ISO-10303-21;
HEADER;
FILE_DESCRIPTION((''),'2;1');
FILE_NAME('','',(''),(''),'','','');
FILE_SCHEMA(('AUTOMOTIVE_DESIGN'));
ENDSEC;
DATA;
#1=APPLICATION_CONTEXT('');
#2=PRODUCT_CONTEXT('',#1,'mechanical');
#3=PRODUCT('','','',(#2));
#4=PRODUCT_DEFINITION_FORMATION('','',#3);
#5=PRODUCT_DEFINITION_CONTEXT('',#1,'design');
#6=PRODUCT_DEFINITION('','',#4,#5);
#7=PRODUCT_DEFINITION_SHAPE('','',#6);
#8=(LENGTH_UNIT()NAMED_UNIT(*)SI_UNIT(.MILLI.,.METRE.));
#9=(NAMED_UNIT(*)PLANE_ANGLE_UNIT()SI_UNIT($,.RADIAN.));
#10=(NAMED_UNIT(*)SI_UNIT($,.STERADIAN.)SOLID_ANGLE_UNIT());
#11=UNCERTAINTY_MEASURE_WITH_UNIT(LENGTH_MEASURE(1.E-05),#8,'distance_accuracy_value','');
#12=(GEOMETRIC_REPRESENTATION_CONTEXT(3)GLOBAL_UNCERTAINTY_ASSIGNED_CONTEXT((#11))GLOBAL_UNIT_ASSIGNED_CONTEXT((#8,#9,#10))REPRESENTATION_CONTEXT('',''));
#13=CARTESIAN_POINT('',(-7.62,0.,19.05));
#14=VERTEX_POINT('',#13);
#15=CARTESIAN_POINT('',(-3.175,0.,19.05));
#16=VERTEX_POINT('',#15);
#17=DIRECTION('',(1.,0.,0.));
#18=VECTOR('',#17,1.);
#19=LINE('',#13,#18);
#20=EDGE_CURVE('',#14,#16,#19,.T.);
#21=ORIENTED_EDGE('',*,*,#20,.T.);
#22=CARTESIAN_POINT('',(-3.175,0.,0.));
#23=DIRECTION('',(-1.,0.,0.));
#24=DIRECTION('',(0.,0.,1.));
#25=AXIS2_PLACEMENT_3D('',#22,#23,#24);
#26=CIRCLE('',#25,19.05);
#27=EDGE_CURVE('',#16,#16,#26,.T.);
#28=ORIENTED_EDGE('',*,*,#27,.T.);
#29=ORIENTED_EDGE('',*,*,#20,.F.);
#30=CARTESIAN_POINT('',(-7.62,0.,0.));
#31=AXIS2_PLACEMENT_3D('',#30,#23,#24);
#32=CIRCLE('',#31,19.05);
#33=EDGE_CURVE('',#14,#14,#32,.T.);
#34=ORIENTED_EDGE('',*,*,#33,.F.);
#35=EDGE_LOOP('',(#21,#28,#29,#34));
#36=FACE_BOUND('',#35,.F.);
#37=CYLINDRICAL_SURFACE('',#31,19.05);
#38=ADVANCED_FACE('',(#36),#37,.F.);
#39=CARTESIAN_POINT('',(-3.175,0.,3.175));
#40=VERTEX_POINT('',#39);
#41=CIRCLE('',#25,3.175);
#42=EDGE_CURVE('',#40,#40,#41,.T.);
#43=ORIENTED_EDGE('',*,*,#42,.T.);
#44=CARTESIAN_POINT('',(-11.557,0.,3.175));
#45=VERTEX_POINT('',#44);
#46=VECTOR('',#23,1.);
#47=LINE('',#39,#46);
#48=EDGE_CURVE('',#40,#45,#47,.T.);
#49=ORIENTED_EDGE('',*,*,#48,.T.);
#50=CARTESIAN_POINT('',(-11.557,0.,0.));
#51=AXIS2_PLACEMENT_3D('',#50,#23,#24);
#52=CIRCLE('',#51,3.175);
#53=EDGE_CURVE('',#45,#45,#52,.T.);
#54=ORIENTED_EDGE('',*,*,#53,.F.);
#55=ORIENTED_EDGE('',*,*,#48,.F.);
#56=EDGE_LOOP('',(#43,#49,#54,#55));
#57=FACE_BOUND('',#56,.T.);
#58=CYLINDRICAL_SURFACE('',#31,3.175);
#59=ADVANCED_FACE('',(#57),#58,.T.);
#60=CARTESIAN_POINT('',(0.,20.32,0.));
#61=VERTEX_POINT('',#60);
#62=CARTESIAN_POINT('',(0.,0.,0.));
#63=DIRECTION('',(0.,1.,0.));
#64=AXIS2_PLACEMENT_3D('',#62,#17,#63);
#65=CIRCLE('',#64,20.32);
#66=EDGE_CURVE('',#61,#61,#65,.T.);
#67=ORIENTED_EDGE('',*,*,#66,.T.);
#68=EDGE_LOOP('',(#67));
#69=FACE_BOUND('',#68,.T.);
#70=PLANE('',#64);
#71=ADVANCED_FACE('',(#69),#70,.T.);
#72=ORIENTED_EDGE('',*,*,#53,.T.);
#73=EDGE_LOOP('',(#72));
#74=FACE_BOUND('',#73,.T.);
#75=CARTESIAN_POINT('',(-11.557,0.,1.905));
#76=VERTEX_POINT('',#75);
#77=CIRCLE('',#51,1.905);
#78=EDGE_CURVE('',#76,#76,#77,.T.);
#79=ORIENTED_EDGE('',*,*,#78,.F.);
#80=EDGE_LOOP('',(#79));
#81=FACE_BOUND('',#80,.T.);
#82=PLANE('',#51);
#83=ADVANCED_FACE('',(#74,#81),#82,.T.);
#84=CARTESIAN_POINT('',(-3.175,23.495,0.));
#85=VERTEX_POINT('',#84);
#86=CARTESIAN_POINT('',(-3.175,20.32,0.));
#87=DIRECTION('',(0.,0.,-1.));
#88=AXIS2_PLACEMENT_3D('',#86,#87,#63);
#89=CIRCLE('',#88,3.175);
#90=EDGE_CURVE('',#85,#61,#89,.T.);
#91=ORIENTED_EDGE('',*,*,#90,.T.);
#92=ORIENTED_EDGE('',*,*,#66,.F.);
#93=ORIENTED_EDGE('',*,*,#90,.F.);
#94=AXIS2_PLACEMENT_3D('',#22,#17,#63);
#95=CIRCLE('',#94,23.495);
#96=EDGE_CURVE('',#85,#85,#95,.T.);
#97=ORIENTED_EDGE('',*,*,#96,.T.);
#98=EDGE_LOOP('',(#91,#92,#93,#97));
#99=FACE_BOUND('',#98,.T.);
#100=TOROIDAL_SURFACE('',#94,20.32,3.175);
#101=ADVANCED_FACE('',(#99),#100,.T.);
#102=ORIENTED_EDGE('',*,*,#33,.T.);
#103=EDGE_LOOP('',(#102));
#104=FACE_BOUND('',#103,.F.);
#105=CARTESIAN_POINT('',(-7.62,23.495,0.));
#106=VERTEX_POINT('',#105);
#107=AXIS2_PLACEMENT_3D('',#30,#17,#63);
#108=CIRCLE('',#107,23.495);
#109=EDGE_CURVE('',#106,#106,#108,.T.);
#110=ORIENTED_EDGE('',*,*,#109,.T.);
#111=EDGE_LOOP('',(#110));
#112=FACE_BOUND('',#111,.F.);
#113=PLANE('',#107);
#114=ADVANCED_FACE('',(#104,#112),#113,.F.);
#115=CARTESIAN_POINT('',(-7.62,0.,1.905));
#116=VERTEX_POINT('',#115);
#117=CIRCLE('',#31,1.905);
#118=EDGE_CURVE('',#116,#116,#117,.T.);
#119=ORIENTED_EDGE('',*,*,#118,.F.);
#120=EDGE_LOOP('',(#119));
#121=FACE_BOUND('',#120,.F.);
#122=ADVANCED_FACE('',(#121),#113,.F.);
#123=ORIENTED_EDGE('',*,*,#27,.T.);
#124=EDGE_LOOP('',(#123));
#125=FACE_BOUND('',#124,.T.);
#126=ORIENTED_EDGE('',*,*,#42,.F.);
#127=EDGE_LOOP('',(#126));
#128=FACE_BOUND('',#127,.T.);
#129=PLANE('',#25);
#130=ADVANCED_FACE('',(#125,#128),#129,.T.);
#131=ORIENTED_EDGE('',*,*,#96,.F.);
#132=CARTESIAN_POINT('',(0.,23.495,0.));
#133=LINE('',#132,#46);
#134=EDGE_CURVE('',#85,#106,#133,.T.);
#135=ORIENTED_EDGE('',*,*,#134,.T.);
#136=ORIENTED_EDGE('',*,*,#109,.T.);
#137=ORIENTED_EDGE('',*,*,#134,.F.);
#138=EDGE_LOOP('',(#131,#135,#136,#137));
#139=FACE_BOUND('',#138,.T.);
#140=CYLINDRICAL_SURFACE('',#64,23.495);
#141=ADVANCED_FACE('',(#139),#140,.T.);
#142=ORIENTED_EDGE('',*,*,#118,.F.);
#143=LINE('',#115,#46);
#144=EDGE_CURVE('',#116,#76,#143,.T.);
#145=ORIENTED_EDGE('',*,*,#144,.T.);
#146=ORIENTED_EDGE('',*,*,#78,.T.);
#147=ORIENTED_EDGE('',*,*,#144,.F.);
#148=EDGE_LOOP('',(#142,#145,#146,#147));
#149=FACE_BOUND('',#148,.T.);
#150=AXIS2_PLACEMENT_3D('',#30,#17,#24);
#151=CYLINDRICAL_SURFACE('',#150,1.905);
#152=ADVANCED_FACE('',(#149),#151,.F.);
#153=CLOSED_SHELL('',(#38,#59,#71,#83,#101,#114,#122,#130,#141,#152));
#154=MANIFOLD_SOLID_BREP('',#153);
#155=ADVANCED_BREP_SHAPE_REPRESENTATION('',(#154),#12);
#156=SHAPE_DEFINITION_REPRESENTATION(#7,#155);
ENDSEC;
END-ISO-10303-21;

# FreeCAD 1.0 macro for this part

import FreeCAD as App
import Part
import Sketcher

V = App.Vector
Q = App.Units.Quantity


def edges_at(feature, points):
    """Names of the edges that pass closest to the given points."""
    edges = feature.Shape.Edges
    near = lambda p: min(range(len(edges)), key=lambda i: edges[i].distToShape(Part.Vertex(*p))[0])
    return sorted({f"Edge{near(p) + 1}" for p in points})

doc = App.newDocument("Part")
body = doc.addObject("PartDesign::Body", "Body")

# Sketch on YZ plane
sketch1 = body.newObject("Sketcher::SketchObject", "Sketch")
sketch1.AttachmentSupport = (doc.getObject("YZ_Plane"), [""])
sketch1.MapMode = "FlatFace"
sketch1.addGeometry(Part.Circle(V(0, 0, 0), V(0, 0, 1), 23.495), False)
sketch1.addConstraint([
    Sketcher.Constraint("Coincident", 0, 3, -1, 1),
    Sketcher.Constraint("Diameter", 0, Q("1.85 in")),
])
pad1 = body.newObject("PartDesign::Pad", "Pad")
pad1.Profile = sketch1
pad1.Length = Q("0.3 in")
pad1.Reversed = True
doc.recompute()

fillet = body.newObject("PartDesign::Fillet", "Fillet")
fillet.Base = (pad1, edges_at(pad1, [(0, -23.495, 0)]))
fillet.Radius = Q("0.125 in")

# Sketch on YZ plane
sketch2 = body.newObject("Sketcher::SketchObject", "Sketch001")
sketch2.AttachmentSupport = (doc.getObject("YZ_Plane"), [""])
sketch2.MapMode = "FlatFace"
sketch2.AttachmentOffset = App.Placement(V(0, 0, -0.3 * 25.4), App.Rotation())
sketch2.addGeometry([
    Part.Circle(V(0, 0, 0), V(0, 0, 1), 3.175),
    Part.Circle(V(0, 0, 0), V(0, 0, 1), 1.905),
], False)
sketch2.addConstraint([
    Sketcher.Constraint("Coincident", 0, 3, -1, 1),
    Sketcher.Constraint("Coincident", 1, 3, -1, 1),
    Sketcher.Constraint("Diameter", 0, Q("0.25 in")),
    Sketcher.Constraint("Diameter", 1, Q("0.15 in")),
])
pad2 = body.newObject("PartDesign::Pad", "Pad001")
pad2.Profile = sketch2
pad2.Length = Q("0.155 in")
pad2.Reversed = True

# Sketch on YZ plane
sketch3 = body.newObject("Sketcher::SketchObject", "Sketch002")
sketch3.AttachmentSupport = (doc.getObject("YZ_Plane"), [""])
sketch3.MapMode = "FlatFace"
sketch3.AttachmentOffset = App.Placement(V(0, 0, -0.3 * 25.4), App.Rotation())
sketch3.addGeometry([
    Part.Circle(V(0, 0, 0), V(0, 0, 1), 19.05),
    Part.Circle(V(0, 0, 0), V(0, 0, 1), 3.175),
], False)
sketch3.addConstraint([
    Sketcher.Constraint("Coincident", 0, 3, -1, 1),
    Sketcher.Constraint("Coincident", 1, 3, -1, 1),
    Sketcher.Constraint("Diameter", 0, Q("1.5 in")),
    Sketcher.Constraint("Diameter", 1, Q("0.25 in")),
])
pocket1 = body.newObject("PartDesign::Pocket", "Pocket")
pocket1.Profile = sketch3
pocket1.Length = Q("0.175 in")
pocket1.Reversed = True

doc.recompute()
